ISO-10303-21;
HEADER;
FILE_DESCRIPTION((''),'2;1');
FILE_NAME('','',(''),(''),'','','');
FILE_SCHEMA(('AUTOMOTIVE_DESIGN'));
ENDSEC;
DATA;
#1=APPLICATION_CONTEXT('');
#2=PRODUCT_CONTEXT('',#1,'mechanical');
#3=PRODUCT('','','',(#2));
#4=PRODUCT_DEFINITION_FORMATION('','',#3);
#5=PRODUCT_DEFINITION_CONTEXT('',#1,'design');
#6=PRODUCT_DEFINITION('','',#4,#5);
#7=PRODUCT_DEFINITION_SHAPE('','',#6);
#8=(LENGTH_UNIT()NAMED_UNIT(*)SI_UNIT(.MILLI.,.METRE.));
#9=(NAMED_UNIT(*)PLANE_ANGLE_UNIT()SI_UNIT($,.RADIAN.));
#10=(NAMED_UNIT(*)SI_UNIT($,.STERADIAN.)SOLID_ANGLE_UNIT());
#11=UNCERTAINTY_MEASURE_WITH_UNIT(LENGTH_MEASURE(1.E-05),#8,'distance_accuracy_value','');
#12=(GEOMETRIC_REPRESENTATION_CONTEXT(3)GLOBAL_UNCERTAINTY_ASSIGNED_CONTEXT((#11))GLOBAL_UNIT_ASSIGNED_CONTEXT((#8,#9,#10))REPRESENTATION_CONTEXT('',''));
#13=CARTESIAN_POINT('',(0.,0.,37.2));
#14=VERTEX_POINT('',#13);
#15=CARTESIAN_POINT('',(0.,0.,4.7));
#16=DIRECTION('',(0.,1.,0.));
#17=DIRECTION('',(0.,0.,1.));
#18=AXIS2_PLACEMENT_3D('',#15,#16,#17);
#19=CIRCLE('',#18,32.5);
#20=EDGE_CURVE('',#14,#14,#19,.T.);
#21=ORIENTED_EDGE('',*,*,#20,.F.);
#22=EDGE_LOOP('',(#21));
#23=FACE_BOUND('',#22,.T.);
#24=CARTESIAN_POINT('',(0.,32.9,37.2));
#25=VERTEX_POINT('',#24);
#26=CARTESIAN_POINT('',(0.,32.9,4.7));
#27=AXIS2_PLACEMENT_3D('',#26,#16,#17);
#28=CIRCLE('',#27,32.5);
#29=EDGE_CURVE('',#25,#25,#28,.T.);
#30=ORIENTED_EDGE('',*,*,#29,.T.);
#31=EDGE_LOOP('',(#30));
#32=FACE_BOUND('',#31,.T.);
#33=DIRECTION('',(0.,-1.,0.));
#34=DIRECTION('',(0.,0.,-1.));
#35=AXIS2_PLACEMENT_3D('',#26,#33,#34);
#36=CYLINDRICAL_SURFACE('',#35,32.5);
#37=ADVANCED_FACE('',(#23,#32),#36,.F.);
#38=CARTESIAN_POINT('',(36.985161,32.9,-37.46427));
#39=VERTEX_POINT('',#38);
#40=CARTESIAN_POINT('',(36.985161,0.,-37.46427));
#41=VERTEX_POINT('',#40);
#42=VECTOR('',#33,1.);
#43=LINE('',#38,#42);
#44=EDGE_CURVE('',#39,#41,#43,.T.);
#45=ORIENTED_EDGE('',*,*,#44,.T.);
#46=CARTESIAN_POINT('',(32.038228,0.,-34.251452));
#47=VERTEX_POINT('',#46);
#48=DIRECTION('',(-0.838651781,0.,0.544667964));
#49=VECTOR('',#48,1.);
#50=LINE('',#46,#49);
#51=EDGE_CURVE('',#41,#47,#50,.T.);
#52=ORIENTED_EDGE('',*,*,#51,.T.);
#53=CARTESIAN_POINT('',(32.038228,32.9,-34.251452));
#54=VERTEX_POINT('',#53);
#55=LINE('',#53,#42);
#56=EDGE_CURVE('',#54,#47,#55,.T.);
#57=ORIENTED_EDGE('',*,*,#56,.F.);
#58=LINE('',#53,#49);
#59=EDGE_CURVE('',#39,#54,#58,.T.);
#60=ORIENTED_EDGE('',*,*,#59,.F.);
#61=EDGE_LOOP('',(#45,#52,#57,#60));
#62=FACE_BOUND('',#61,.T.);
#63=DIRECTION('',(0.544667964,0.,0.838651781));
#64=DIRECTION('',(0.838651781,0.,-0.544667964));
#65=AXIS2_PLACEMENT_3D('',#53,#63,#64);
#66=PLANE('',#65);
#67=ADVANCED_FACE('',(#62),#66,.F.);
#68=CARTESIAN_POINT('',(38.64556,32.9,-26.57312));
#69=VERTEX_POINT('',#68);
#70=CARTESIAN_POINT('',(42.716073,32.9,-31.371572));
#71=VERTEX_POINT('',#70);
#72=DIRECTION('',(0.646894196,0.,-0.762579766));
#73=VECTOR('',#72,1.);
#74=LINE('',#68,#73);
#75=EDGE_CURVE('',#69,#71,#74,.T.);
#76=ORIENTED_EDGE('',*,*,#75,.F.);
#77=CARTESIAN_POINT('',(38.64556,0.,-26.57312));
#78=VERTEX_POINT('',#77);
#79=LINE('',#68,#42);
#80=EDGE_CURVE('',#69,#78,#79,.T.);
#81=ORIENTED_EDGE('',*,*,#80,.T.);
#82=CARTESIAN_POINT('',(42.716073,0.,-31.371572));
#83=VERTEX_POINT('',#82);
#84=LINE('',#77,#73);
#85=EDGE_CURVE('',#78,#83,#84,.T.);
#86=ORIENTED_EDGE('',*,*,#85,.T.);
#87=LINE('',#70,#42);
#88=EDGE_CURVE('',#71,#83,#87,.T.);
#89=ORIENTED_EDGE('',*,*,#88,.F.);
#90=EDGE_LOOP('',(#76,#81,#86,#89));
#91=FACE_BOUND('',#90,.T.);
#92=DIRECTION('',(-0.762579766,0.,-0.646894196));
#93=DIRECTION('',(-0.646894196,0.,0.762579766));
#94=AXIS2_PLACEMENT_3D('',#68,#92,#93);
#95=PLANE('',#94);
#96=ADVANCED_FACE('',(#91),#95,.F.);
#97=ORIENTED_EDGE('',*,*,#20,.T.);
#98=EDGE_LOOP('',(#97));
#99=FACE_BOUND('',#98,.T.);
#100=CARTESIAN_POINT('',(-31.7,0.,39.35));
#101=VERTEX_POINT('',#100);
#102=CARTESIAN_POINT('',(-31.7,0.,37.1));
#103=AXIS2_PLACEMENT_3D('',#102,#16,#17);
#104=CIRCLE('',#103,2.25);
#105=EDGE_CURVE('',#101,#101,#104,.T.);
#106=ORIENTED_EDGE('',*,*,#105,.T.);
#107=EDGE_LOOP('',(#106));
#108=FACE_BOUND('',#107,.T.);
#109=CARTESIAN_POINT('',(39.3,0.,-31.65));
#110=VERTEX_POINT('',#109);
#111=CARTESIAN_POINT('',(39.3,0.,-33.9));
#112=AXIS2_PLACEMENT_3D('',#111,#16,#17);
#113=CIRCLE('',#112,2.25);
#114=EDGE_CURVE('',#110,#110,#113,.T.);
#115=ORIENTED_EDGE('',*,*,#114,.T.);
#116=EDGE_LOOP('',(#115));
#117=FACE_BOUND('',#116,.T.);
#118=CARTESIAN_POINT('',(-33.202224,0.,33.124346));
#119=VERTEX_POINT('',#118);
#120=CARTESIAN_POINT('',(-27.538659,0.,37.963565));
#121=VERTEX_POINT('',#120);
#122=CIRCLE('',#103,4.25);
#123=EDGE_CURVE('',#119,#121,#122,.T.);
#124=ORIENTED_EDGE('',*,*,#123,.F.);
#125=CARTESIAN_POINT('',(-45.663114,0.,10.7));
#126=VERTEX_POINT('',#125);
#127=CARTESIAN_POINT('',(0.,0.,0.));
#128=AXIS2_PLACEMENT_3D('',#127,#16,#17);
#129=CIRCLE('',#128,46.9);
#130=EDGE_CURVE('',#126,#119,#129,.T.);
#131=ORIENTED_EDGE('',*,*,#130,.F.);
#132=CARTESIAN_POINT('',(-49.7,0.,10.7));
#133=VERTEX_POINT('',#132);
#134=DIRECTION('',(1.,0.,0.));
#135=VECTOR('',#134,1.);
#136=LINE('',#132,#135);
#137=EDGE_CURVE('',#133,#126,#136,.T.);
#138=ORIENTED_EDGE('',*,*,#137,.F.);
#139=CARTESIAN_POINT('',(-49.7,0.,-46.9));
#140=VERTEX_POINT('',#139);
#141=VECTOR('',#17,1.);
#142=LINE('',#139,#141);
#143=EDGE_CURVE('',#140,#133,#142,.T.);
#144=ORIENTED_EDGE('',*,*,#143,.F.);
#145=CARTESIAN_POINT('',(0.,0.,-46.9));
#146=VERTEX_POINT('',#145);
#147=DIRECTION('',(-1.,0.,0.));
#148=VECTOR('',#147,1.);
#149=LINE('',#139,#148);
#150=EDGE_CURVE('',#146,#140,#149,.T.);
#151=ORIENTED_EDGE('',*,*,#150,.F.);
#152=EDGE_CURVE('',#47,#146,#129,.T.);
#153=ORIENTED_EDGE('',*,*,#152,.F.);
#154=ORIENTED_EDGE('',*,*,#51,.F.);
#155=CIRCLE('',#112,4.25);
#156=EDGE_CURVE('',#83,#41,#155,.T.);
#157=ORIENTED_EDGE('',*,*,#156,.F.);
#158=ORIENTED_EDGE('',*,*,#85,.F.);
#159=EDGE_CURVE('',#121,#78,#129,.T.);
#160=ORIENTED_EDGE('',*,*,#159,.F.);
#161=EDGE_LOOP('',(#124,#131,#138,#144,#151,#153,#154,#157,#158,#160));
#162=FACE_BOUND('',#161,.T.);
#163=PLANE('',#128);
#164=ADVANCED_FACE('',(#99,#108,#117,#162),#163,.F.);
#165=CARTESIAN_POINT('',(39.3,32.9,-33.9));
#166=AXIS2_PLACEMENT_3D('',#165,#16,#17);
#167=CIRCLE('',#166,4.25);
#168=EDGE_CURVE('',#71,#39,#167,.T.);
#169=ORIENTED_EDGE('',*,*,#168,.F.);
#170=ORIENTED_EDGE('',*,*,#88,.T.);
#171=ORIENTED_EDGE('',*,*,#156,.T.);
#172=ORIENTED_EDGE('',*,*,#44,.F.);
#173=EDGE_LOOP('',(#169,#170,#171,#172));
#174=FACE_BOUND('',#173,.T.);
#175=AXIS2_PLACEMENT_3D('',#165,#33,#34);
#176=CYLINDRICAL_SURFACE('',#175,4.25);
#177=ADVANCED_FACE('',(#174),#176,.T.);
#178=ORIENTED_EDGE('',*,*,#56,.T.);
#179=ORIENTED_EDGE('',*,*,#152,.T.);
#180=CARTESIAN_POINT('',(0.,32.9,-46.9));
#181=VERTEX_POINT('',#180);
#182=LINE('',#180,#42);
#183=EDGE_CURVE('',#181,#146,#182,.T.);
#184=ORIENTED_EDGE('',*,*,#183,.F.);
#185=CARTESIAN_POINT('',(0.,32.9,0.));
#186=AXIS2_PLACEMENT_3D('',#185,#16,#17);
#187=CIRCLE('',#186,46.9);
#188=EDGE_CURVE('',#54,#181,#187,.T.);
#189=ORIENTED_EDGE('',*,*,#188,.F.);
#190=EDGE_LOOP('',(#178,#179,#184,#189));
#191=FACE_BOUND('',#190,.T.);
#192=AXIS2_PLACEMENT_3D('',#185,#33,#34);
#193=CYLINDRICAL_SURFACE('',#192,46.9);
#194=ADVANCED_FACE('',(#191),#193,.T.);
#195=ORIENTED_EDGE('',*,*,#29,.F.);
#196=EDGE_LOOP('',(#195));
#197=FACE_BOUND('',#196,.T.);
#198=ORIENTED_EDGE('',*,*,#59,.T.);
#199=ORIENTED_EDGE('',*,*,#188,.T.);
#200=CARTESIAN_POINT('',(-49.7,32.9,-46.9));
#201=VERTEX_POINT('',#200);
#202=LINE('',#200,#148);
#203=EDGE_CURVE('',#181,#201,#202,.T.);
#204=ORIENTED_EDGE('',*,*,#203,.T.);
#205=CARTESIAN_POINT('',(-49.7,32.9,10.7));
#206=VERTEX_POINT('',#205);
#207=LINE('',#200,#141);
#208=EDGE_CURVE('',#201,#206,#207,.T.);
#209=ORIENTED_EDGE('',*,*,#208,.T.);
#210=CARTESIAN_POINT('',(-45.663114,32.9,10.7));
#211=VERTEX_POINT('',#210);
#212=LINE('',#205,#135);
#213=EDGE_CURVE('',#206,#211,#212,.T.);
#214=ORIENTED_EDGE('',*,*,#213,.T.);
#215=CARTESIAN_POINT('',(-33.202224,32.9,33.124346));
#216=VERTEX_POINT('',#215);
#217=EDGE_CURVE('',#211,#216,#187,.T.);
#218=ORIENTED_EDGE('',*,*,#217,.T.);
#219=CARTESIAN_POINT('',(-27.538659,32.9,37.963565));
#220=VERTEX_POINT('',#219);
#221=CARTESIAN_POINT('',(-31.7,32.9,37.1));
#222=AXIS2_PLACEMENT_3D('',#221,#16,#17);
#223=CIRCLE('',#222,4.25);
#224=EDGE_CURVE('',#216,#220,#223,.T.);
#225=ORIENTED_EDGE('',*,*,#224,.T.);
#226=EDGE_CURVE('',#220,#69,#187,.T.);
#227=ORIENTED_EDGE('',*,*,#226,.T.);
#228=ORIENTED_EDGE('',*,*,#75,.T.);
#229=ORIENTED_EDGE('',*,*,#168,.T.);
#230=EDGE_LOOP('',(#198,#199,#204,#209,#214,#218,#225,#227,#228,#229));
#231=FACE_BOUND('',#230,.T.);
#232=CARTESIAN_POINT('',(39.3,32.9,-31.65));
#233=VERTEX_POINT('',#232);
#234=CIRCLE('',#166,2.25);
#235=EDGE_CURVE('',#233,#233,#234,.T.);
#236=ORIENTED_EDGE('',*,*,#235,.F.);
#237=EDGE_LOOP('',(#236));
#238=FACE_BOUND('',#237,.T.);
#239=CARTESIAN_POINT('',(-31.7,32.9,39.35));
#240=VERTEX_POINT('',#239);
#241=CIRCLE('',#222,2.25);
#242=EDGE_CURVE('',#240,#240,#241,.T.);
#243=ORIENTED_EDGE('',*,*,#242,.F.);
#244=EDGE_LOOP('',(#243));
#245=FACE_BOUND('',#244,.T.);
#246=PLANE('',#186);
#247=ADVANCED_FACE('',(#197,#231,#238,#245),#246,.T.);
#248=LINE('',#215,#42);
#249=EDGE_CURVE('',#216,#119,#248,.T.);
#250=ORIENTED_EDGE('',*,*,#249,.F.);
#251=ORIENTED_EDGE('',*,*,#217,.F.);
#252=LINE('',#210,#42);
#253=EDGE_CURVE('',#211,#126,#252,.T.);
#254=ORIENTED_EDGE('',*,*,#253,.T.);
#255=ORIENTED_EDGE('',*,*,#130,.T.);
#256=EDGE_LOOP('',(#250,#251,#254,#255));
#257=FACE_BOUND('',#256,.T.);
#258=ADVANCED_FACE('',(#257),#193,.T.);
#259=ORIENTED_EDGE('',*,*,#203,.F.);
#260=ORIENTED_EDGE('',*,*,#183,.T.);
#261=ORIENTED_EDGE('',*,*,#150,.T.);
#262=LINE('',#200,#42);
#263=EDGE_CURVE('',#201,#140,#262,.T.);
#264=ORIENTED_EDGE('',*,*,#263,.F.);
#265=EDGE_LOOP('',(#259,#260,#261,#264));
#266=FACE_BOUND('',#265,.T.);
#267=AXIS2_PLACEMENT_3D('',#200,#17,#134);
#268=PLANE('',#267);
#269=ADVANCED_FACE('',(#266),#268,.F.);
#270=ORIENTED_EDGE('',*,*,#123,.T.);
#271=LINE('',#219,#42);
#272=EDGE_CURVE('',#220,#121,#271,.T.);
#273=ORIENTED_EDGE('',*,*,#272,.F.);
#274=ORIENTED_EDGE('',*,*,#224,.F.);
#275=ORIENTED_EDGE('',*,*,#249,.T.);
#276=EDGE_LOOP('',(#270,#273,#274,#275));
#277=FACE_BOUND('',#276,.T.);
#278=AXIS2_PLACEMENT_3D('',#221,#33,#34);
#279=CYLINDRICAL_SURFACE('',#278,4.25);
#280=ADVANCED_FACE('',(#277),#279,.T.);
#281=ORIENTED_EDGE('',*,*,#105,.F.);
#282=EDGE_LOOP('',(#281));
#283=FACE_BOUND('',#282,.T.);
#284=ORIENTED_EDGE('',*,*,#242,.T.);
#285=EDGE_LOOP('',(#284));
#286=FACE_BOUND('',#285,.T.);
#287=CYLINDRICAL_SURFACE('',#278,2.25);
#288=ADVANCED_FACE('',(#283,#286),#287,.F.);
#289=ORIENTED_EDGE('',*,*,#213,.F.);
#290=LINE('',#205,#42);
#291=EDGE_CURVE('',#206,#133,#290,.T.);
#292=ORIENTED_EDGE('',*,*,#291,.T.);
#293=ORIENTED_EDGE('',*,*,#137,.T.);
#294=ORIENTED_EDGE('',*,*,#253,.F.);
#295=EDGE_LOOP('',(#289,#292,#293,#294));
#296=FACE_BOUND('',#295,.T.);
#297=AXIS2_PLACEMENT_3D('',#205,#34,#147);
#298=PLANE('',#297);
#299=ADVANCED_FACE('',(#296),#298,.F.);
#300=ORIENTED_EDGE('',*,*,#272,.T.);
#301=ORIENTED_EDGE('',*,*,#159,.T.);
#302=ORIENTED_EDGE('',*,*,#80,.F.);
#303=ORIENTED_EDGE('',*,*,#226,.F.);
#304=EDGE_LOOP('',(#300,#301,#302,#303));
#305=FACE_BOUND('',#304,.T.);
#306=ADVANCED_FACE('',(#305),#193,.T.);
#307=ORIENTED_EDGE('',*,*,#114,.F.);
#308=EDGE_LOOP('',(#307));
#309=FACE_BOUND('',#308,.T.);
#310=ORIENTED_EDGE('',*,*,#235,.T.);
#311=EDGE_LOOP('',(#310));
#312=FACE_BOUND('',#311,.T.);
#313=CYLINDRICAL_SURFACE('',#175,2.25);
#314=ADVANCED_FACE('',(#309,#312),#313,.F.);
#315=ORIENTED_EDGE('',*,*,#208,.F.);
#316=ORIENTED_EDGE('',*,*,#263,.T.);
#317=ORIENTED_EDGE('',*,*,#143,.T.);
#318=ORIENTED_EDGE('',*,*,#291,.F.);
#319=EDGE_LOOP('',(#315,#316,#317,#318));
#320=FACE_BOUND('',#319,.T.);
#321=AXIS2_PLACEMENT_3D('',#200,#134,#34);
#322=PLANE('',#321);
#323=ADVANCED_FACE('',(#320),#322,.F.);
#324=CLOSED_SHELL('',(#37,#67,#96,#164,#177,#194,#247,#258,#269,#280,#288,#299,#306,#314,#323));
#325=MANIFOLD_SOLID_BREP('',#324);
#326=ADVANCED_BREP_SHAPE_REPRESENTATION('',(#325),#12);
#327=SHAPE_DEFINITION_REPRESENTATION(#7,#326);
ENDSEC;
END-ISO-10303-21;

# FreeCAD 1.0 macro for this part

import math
import FreeCAD as App
import Part
import Sketcher

V = App.Vector
Q = App.Units.Quantity

doc = App.newDocument("Part")
body = doc.addObject("PartDesign::Body", "Body")

# Sketch on XZ plane
sketch1 = body.newObject("Sketcher::SketchObject", "Sketch")
sketch1.AttachmentSupport = (doc.getObject("XZ_Plane"), [""])
sketch1.MapMode = "FlatFace"
sketch1.addGeometry([
    Part.LineSegment(V(36.985161, -37.46427, 0), V(32.038228, -34.251452, 0)),  # 0
    Part.ArcOfCircle(Part.Circle(V(0, 0, 0), V(0, 0, 1), 46.9), math.radians(-90), math.radians(-46.912232)),  # 1
    Part.LineSegment(V(0, -46.9, 0), V(-49.7, -46.9, 0)),  # 2
    Part.LineSegment(V(-49.7, -46.9, 0), V(-49.7, 10.7, 0)),  # 3
    Part.LineSegment(V(-49.7, 10.7, 0), V(-45.663114, 10.7, 0)),  # 4
    Part.ArcOfCircle(Part.Circle(V(0, 0, 0), V(0, 0, 1), 46.9), math.radians(135.067274), math.radians(166.812116)),  # 5
    Part.ArcOfCircle(Part.Circle(V(-31.7, 37.1, 0), V(0, 0, 1), 4.25), math.radians(11.723662), math.radians(249.300634)),  # 6
    Part.ArcOfCircle(Part.Circle(V(0, 0, 0), V(0, 0, 1), 46.9), math.radians(-34.51285), math.radians(125.957022)),  # 7
    Part.LineSegment(V(38.64556, -26.57312, 0), V(42.716073, -31.371572, 0)),  # 8
    Part.ArcOfCircle(Part.Circle(V(39.3, -33.9, 0), V(0, 0, 1), 4.25), math.radians(-123.001976), math.radians(36.507225)),  # 9
    Part.Circle(V(-31.7, 37.1, 0), V(0, 0, 1), 2.25),  # 10
    Part.Circle(V(0, 4.7, 0), V(0, 0, 1), 32.5),  # 11
    Part.Circle(V(39.3, -33.9, 0), V(0, 0, 1), 2.25),  # 12
], False)
sketch1.addConstraint([
    Sketcher.Constraint("Coincident", 0, 2, 1, 2),
    Sketcher.Constraint("Tangent", 1, 1, 2, 1),
    Sketcher.Constraint("Coincident", 2, 2, 3, 1),
    Sketcher.Constraint("Coincident", 3, 2, 4, 1),
    Sketcher.Constraint("Coincident", 4, 2, 5, 2),
    Sketcher.Constraint("Coincident", 5, 1, 6, 2),
    Sketcher.Constraint("Coincident", 6, 1, 7, 2),
    Sketcher.Constraint("Coincident", 7, 1, 8, 1),
    Sketcher.Constraint("Coincident", 8, 2, 9, 2),
    Sketcher.Constraint("Tangent", 9, 1, 0, 1),
    Sketcher.Constraint("Horizontal", 2),
    Sketcher.Constraint("Vertical", 3),
    Sketcher.Constraint("Horizontal", 4),
    Sketcher.Constraint("Coincident", 1, 3, -1, 1),
    Sketcher.Constraint("Coincident", 5, 3, -1, 1),
    Sketcher.Constraint("Coincident", 7, 3, -1, 1),
    Sketcher.Constraint("Coincident", 10, 3, 6, 3),
    Sketcher.Constraint("Coincident", 12, 3, 9, 3),
    Sketcher.Constraint("Equal", 1, 5),
    Sketcher.Constraint("Equal", 5, 7),
    Sketcher.Constraint("Equal", 6, 9),
    Sketcher.Constraint("Equal", 10, 12),
    Sketcher.Constraint("PointOnObject", 11, 3, -2),
    Sketcher.Constraint("Diameter", 11, Q("65 mm")),
    Sketcher.Constraint("Diameter", 10, Q("4.5 mm")),
    Sketcher.Constraint("Radius", 1, Q("46.9 mm")),
    Sketcher.Constraint("Radius", 6, Q("4.25 mm")),
    Sketcher.Constraint("DistanceX", 2, 2, 2, 1, Q("49.7 mm")),
    Sketcher.Constraint("DistanceY", 3, 1, 3, 2, Q("57.6 mm")),
    Sketcher.Constraint("DistanceX", 6, 3, 9, 3, Q("71 mm")),
    Sketcher.Constraint("DistanceY", 9, 3, 6, 3, Q("71 mm")),
    Sketcher.Constraint("DistanceY", 1, 1, 9, 3, Q("13 mm")),
    Sketcher.Constraint("DistanceX", 3, 2, 6, 3, Q("18 mm")),
    Sketcher.Constraint("DistanceY", 11, 3, 3, 2, Q("6 mm")),
    Sketcher.Constraint("DistanceX", 9, 1, 7, 1, Q("1.660399 mm")),
    Sketcher.Constraint("DistanceX", -1, 1, 0, 2, Q("32.038228 mm")),
    Sketcher.Constraint("DistanceY", 0, 2, 8, 2, Q("2.879879 mm")),
])
pad1 = body.newObject("PartDesign::Pad", "Pad")
pad1.Profile = sketch1
pad1.Length = 32.9
pad1.Reversed = True

doc.recompute()
